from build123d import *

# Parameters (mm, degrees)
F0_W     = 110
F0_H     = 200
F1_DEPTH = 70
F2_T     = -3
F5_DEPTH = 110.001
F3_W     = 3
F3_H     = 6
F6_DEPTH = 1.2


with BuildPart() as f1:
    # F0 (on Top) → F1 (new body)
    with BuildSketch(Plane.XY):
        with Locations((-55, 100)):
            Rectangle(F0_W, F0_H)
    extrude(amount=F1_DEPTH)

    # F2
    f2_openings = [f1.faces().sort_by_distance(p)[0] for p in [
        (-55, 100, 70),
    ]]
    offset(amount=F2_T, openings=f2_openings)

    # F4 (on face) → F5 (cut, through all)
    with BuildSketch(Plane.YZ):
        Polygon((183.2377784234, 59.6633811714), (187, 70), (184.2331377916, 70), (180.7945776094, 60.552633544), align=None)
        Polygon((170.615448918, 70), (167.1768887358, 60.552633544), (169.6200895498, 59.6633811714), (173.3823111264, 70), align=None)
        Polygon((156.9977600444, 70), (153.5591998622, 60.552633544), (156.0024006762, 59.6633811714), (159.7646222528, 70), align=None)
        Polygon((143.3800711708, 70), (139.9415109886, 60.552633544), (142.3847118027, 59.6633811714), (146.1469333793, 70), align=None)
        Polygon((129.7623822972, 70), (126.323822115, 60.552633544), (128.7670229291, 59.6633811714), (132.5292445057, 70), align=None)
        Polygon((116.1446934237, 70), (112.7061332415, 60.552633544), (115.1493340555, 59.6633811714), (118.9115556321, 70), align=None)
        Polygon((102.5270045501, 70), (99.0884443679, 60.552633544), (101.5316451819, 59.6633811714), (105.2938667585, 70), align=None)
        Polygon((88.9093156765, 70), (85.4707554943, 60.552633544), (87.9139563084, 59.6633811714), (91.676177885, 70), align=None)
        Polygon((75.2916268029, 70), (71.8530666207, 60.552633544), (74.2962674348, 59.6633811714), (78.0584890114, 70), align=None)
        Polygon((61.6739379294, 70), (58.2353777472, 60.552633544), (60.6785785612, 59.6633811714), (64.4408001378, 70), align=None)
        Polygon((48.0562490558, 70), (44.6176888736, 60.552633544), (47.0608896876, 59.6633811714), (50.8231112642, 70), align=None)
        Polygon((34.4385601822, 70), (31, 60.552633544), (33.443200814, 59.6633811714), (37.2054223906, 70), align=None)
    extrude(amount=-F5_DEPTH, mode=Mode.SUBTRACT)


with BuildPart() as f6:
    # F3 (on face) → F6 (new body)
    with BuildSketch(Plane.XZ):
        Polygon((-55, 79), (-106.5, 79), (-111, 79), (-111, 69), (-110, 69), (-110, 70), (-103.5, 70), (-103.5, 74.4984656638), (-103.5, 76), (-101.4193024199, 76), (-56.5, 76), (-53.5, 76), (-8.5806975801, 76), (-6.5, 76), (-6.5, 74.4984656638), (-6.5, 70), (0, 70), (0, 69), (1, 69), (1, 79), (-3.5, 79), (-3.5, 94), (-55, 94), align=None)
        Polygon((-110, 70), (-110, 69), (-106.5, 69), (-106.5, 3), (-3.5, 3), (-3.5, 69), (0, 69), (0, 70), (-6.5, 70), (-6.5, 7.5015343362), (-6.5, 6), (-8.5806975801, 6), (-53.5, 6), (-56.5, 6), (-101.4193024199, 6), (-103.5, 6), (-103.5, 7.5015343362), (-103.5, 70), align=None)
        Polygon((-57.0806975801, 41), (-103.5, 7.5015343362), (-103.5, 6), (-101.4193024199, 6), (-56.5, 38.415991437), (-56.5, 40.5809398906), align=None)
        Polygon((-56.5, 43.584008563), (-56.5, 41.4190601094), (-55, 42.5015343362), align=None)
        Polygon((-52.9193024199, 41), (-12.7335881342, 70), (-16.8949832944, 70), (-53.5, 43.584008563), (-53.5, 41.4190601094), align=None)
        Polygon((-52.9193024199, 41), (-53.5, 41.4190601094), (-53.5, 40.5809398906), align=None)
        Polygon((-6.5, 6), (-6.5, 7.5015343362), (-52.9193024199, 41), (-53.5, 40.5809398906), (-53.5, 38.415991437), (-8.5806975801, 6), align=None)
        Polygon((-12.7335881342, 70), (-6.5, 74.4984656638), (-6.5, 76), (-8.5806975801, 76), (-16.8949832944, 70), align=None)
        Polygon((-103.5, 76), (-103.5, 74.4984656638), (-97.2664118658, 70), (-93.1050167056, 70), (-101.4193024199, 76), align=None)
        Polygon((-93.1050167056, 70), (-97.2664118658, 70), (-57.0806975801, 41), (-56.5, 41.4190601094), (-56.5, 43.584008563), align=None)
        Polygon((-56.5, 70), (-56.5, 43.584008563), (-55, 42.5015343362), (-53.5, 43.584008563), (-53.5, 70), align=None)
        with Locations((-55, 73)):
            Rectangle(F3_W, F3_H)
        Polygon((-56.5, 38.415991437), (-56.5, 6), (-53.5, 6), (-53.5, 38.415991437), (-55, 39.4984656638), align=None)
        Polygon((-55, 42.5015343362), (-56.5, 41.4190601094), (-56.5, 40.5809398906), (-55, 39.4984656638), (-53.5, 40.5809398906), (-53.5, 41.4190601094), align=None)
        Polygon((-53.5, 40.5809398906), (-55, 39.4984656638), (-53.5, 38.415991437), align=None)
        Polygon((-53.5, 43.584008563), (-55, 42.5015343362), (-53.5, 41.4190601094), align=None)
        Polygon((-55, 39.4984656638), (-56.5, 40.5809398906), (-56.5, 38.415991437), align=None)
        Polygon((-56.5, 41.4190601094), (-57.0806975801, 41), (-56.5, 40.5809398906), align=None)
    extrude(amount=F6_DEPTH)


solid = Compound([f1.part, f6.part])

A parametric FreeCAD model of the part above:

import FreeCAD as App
import Part
import Sketcher
from FreeCAD import Vector
Q = App.Units.Quantity


def faces_at(feature, points):
    """Names of the faces that lie closest to the given points."""
    faces = feature.Shape.Faces
    near = lambda p: min(range(len(faces)), key=lambda i: faces[i].distToShape(Part.Vertex(*p))[0])
    return sorted({f"Face{near(p) + 1}" for p in points})

doc = App.newDocument("Part")
body = doc.addObject("PartDesign::Body", "Body")

sketch1 = body.newObject("Sketcher::SketchObject", "Sketch")
sketch1.AttachmentSupport = (doc.getObject("XY_Plane"), [""])
sketch1.MapMode = "FlatFace"
sketch1.addGeometry(Part.LineSegment(Vector(-110, 200, 0), Vector(-110, 0, 0)), False)
sketch1.addGeometry(Part.LineSegment(Vector(-110, 0, 0), Vector(0, 0, 0)), False)
sketch1.addGeometry(Part.LineSegment(Vector(0, 0, 0), Vector(0, 200, 0)), False)
sketch1.addGeometry(Part.LineSegment(Vector(0, 200, 0), Vector(-110, 200, 0)), False)
sketch1.addConstraint(Sketcher.Constraint("Coincident", 0, 2, 1, 1))
sketch1.addConstraint(Sketcher.Constraint("Coincident", 1, 2, 2, 1))
sketch1.addConstraint(Sketcher.Constraint("Coincident", 2, 2, 3, 1))
sketch1.addConstraint(Sketcher.Constraint("Coincident", 3, 2, 0, 1))
sketch1.addConstraint(Sketcher.Constraint("Vertical", 0))
sketch1.addConstraint(Sketcher.Constraint("Horizontal", 1))
sketch1.addConstraint(Sketcher.Constraint("Vertical", 2))
sketch1.addConstraint(Sketcher.Constraint("Horizontal", 3))
sketch1.addConstraint(Sketcher.Constraint("Coincident", 1, 2, -1, 1))
sketch1.addConstraint(Sketcher.Constraint("DistanceX", 1, 1, 1, 2, Q("110 mm")))
sketch1.addConstraint(Sketcher.Constraint("DistanceY", 0, 2, 0, 1, Q("200 mm")))
pad1 = body.newObject("PartDesign::Pad", "Pad")
pad1.Profile = sketch1
pad1.Length = 70
doc.recompute()

thickness = body.newObject("PartDesign::Thickness", "Thickness")
thickness.Base = (pad1, faces_at(pad1, [(-55, 100, 70)]))
thickness.Value = 3
thickness.Reversed = True
thickness.Join = "Arc"

sketch2 = body.newObject("Sketcher::SketchObject", "Sketch001")
sketch2.AttachmentSupport = (doc.getObject("YZ_Plane"), [""])
sketch2.MapMode = "FlatFace"
sketch2.addGeometry(Part.LineSegment(Vector(183.2, 59.7, 0), Vector(187, 70, 0)), False)
sketch2.addGeometry(Part.LineSegment(Vector(187, 70, 0), Vector(184.2, 70, 0)), False)
sketch2.addGeometry(Part.LineSegment(Vector(184.2, 70, 0), Vector(180.8, 60.6, 0)), False)
sketch2.addGeometry(Part.LineSegment(Vector(180.8, 60.6, 0), Vector(183.2, 59.7, 0)), False)
sketch2.addGeometry(Part.LineSegment(Vector(170.6, 70, 0), Vector(167.2, 60.6, 0)), False)
sketch2.addGeometry(Part.LineSegment(Vector(167.2, 60.6, 0), Vector(169.6, 59.7, 0)), False)
sketch2.addGeometry(Part.LineSegment(Vector(169.6, 59.7, 0), Vector(173.4, 70, 0)), False)
sketch2.addGeometry(Part.LineSegment(Vector(173.4, 70, 0), Vector(170.6, 70, 0)), False)
sketch2.addGeometry(Part.LineSegment(Vector(157, 70, 0), Vector(153.6, 60.6, 0)), False)
sketch2.addGeometry(Part.LineSegment(Vector(153.6, 60.6, 0), Vector(156, 59.7, 0)), False)
sketch2.addGeometry(Part.LineSegment(Vector(156, 59.7, 0), Vector(159.8, 70, 0)), False)
sketch2.addGeometry(Part.LineSegment(Vector(159.8, 70, 0), Vector(157, 70, 0)), False)
sketch2.addGeometry(Part.LineSegment(Vector(143.4, 70, 0), Vector(139.9, 60.6, 0)), False)
sketch2.addGeometry(Part.LineSegment(Vector(139.9, 60.6, 0), Vector(142.4, 59.7, 0)), False)
sketch2.addGeometry(Part.LineSegment(Vector(142.4, 59.7, 0), Vector(146.1, 70, 0)), False)
sketch2.addGeometry(Part.LineSegment(Vector(146.1, 70, 0), Vector(143.4, 70, 0)), False)
sketch2.addGeometry(Part.LineSegment(Vector(129.8, 70, 0), Vector(126.3, 60.6, 0)), False)
sketch2.addGeometry(Part.LineSegment(Vector(126.3, 60.6, 0), Vector(128.8, 59.7, 0)), False)
sketch2.addGeometry(Part.LineSegment(Vector(128.8, 59.7, 0), Vector(132.5, 70, 0)), False)
sketch2.addGeometry(Part.LineSegment(Vector(132.5, 70, 0), Vector(129.8, 70, 0)), False)
sketch2.addGeometry(Part.LineSegment(Vector(116.1, 70, 0), Vector(112.7, 60.6, 0)), False)
sketch2.addGeometry(Part.LineSegment(Vector(112.7, 60.6, 0), Vector(115.1, 59.7, 0)), False)
sketch2.addGeometry(Part.LineSegment(Vector(115.1, 59.7, 0), Vector(118.9, 70, 0)), False)
sketch2.addGeometry(Part.LineSegment(Vector(118.9, 70, 0), Vector(116.1, 70, 0)), False)
sketch2.addGeometry(Part.LineSegment(Vector(102.5, 70, 0), Vector(99.1, 60.6, 0)), False)
sketch2.addGeometry(Part.LineSegment(Vector(99.1, 60.6, 0), Vector(101.5, 59.7, 0)), False)
sketch2.addGeometry(Part.LineSegment(Vector(101.5, 59.7, 0), Vector(105.3, 70, 0)), False)
sketch2.addGeometry(Part.LineSegment(Vector(105.3, 70, 0), Vector(102.5, 70, 0)), False)
sketch2.addGeometry(Part.LineSegment(Vector(88.9, 70, 0), Vector(85.5, 60.6, 0)), False)
sketch2.addGeometry(Part.LineSegment(Vector(85.5, 60.6, 0), Vector(87.9, 59.7, 0)), False)
sketch2.addGeometry(Part.LineSegment(Vector(87.9, 59.7, 0), Vector(91.7, 70, 0)), False)
sketch2.addGeometry(Part.LineSegment(Vector(91.7, 70, 0), Vector(88.9, 70, 0)), False)
sketch2.addGeometry(Part.LineSegment(Vector(75.3, 70, 0), Vector(71.9, 60.6, 0)), False)
sketch2.addGeometry(Part.LineSegment(Vector(71.9, 60.6, 0), Vector(74.3, 59.7, 0)), False)
sketch2.addGeometry(Part.LineSegment(Vector(74.3, 59.7, 0), Vector(78.1, 70, 0)), False)
sketch2.addGeometry(Part.LineSegment(Vector(78.1, 70, 0), Vector(75.3, 70, 0)), False)
sketch2.addGeometry(Part.LineSegment(Vector(61.7, 70, 0), Vector(58.2, 60.6, 0)), False)
sketch2.addGeometry(Part.LineSegment(Vector(58.2, 60.6, 0), Vector(60.7, 59.7, 0)), False)
sketch2.addGeometry(Part.LineSegment(Vector(60.7, 59.7, 0), Vector(64.4, 70, 0)), False)
sketch2.addGeometry(Part.LineSegment(Vector(64.4, 70, 0), Vector(61.7, 70, 0)), False)
sketch2.addGeometry(Part.LineSegment(Vector(48.1, 70, 0), Vector(44.6, 60.6, 0)), False)
sketch2.addGeometry(Part.LineSegment(Vector(44.6, 60.6, 0), Vector(47.1, 59.7, 0)), False)
sketch2.addGeometry(Part.LineSegment(Vector(47.1, 59.7, 0), Vector(50.8, 70, 0)), False)
sketch2.addGeometry(Part.LineSegment(Vector(50.8, 70, 0), Vector(48.1, 70, 0)), False)
sketch2.addGeometry(Part.LineSegment(Vector(34.4, 70, 0), Vector(31, 60.6, 0)), False)
sketch2.addGeometry(Part.LineSegment(Vector(31, 60.6, 0), Vector(33.4, 59.7, 0)), False)
sketch2.addGeometry(Part.LineSegment(Vector(33.4, 59.7, 0), Vector(37.2, 70, 0)), False)
sketch2.addGeometry(Part.LineSegment(Vector(37.2, 70, 0), Vector(34.4, 70, 0)), False)
sketch2.addConstraint(Sketcher.Constraint("Coincident", 0, 2, 1, 1))
sketch2.addConstraint(Sketcher.Constraint("Coincident", 1, 2, 2, 1))
sketch2.addConstraint(Sketcher.Constraint("Coincident", 2, 2, 3, 1))
sketch2.addConstraint(Sketcher.Constraint("Coincident", 3, 2, 0, 1))
sketch2.addConstraint(Sketcher.Constraint("Coincident", 4, 2, 5, 1))
sketch2.addConstraint(Sketcher.Constraint("Coincident", 5, 2, 6, 1))
sketch2.addConstraint(Sketcher.Constraint("Coincident", 6, 2, 7, 1))
sketch2.addConstraint(Sketcher.Constraint("Coincident", 7, 2, 4, 1))
sketch2.addConstraint(Sketcher.Constraint("Coincident", 8, 2, 9, 1))
sketch2.addConstraint(Sketcher.Constraint("Coincident", 9, 2, 10, 1))
sketch2.addConstraint(Sketcher.Constraint("Coincident", 10, 2, 11, 1))
sketch2.addConstraint(Sketcher.Constraint("Coincident", 11, 2, 8, 1))
sketch2.addConstraint(Sketcher.Constraint("Coincident", 12, 2, 13, 1))
sketch2.addConstraint(Sketcher.Constraint("Coincident", 13, 2, 14, 1))
sketch2.addConstraint(Sketcher.Constraint("Coincident", 14, 2, 15, 1))
sketch2.addConstraint(Sketcher.Constraint("Coincident", 15, 2, 12, 1))
sketch2.addConstraint(Sketcher.Constraint("Coincident", 16, 2, 17, 1))
sketch2.addConstraint(Sketcher.Constraint("Coincident", 17, 2, 18, 1))
sketch2.addConstraint(Sketcher.Constraint("Coincident", 18, 2, 19, 1))
sketch2.addConstraint(Sketcher.Constraint("Coincident", 19, 2, 16, 1))
sketch2.addConstraint(Sketcher.Constraint("Coincident", 20, 2, 21, 1))
sketch2.addConstraint(Sketcher.Constraint("Coincident", 21, 2, 22, 1))
sketch2.addConstraint(Sketcher.Constraint("Coincident", 22, 2, 23, 1))
sketch2.addConstraint(Sketcher.Constraint("Coincident", 23, 2, 20, 1))
sketch2.addConstraint(Sketcher.Constraint("Coincident", 24, 2, 25, 1))
sketch2.addConstraint(Sketcher.Constraint("Coincident", 25, 2, 26, 1))
sketch2.addConstraint(Sketcher.Constraint("Coincident", 26, 2, 27, 1))
sketch2.addConstraint(Sketcher.Constraint("Coincident", 27, 2, 24, 1))
sketch2.addConstraint(Sketcher.Constraint("Coincident", 28, 2, 29, 1))
sketch2.addConstraint(Sketcher.Constraint("Coincident", 29, 2, 30, 1))
sketch2.addConstraint(Sketcher.Constraint("Coincident", 30, 2, 31, 1))
sketch2.addConstraint(Sketcher.Constraint("Coincident", 31, 2, 28, 1))
sketch2.addConstraint(Sketcher.Constraint("Coincident", 32, 2, 33, 1))
sketch2.addConstraint(Sketcher.Constraint("Coincident", 33, 2, 34, 1))
sketch2.addConstraint(Sketcher.Constraint("Coincident", 34, 2, 35, 1))
sketch2.addConstraint(Sketcher.Constraint("Coincident", 35, 2, 32, 1))
sketch2.addConstraint(Sketcher.Constraint("Coincident", 36, 2, 37, 1))
sketch2.addConstraint(Sketcher.Constraint("Coincident", 37, 2, 38, 1))
sketch2.addConstraint(Sketcher.Constraint("Coincident", 38, 2, 39, 1))
sketch2.addConstraint(Sketcher.Constraint("Coincident", 39, 2, 36, 1))
sketch2.addConstraint(Sketcher.Constraint("Coincident", 40, 2, 41, 1))
sketch2.addConstraint(Sketcher.Constraint("Coincident", 41, 2, 42, 1))
sketch2.addConstraint(Sketcher.Constraint("Coincident", 42, 2, 43, 1))
sketch2.addConstraint(Sketcher.Constraint("Coincident", 43, 2, 40, 1))
sketch2.addConstraint(Sketcher.Constraint("Coincident", 44, 2, 45, 1))
sketch2.addConstraint(Sketcher.Constraint("Coincident", 45, 2, 46, 1))
sketch2.addConstraint(Sketcher.Constraint("Coincident", 46, 2, 47, 1))
sketch2.addConstraint(Sketcher.Constraint("Coincident", 47, 2, 44, 1))
sketch2.addConstraint(Sketcher.Constraint("Horizontal", 1))
sketch2.addConstraint(Sketcher.Constraint("Horizontal", 7))
sketch2.addConstraint(Sketcher.Constraint("Horizontal", 11))
sketch2.addConstraint(Sketcher.Constraint("Horizontal", 15))
sketch2.addConstraint(Sketcher.Constraint("Horizontal", 19))
sketch2.addConstraint(Sketcher.Constraint("Horizontal", 23))
sketch2.addConstraint(Sketcher.Constraint("Horizontal", 27))
sketch2.addConstraint(Sketcher.Constraint("Horizontal", 31))
sketch2.addConstraint(Sketcher.Constraint("Horizontal", 35))
sketch2.addConstraint(Sketcher.Constraint("Horizontal", 39))
sketch2.addConstraint(Sketcher.Constraint("Horizontal", 43))
sketch2.addConstraint(Sketcher.Constraint("Horizontal", 47))
sketch2.addConstraint(Sketcher.Constraint("Parallel", 0, 2))
sketch2.addConstraint(Sketcher.Constraint("Perpendicular", 2, 3))
sketch2.addConstraint(Sketcher.Constraint("Perpendicular", 3, 4))
sketch2.addConstraint(Sketcher.Constraint("Perpendicular", 4, 5))
sketch2.addConstraint(Sketcher.Constraint("Perpendicular", 5, 6))
sketch2.addConstraint(Sketcher.Constraint("Parallel", 6, 8))
sketch2.addConstraint(Sketcher.Constraint("Perpendicular", 8, 9))
sketch2.addConstraint(Sketcher.Constraint("Perpendicular", 9, 10))
sketch2.addConstraint(Sketcher.Constraint("Parallel", 10, 12))
sketch2.addConstraint(Sketcher.Constraint("Perpendicular", 12, 13))
sketch2.addConstraint(Sketcher.Constraint("Perpendicular", 13, 14))
sketch2.addConstraint(Sketcher.Constraint("Parallel", 14, 16))
sketch2.addConstraint(Sketcher.Constraint("Perpendicular", 16, 17))
sketch2.addConstraint(Sketcher.Constraint("Perpendicular", 17, 18))
sketch2.addConstraint(Sketcher.Constraint("Parallel", 18, 20))
sketch2.addConstraint(Sketcher.Constraint("Perpendicular", 20, 21))
sketch2.addConstraint(Sketcher.Constraint("Perpendicular", 21, 22))
sketch2.addConstraint(Sketcher.Constraint("Parallel", 22, 24))
sketch2.addConstraint(Sketcher.Constraint("Perpendicular", 24, 25))
sketch2.addConstraint(Sketcher.Constraint("Perpendicular", 25, 26))
sketch2.addConstraint(Sketcher.Constraint("Parallel", 26, 28))
sketch2.addConstraint(Sketcher.Constraint("Perpendicular", 28, 29))
sketch2.addConstraint(Sketcher.Constraint("Perpendicular", 29, 30))
sketch2.addConstraint(Sketcher.Constraint("Parallel", 30, 32))
sketch2.addConstraint(Sketcher.Constraint("Perpendicular", 32, 33))
sketch2.addConstraint(Sketcher.Constraint("Perpendicular", 33, 34))
sketch2.addConstraint(Sketcher.Constraint("Parallel", 34, 36))
sketch2.addConstraint(Sketcher.Constraint("Perpendicular", 36, 37))
sketch2.addConstraint(Sketcher.Constraint("Perpendicular", 37, 38))
sketch2.addConstraint(Sketcher.Constraint("Parallel", 38, 40))
sketch2.addConstraint(Sketcher.Constraint("Perpendicular", 40, 41))
sketch2.addConstraint(Sketcher.Constraint("Perpendicular", 41, 42))
sketch2.addConstraint(Sketcher.Constraint("Parallel", 42, 44))
sketch2.addConstraint(Sketcher.Constraint("Perpendicular", 44, 45))
sketch2.addConstraint(Sketcher.Constraint("Perpendicular", 45, 46))
sketch2.addConstraint(Sketcher.Constraint("Horizontal", 2, 2, 4, 2))
sketch2.addConstraint(Sketcher.Constraint("Horizontal", 3, 2, 5, 2))
sketch2.addConstraint(Sketcher.Constraint("Horizontal", 1, 2, 6, 2))
sketch2.addConstraint(Sketcher.Constraint("Horizontal", 4, 2, 8, 2))
sketch2.addConstraint(Sketcher.Constraint("Horizontal", 5, 2, 9, 2))
sketch2.addConstraint(Sketcher.Constraint("Horizontal", 7, 2, 10, 2))
sketch2.addConstraint(Sketcher.Constraint("Horizontal", 8, 2, 12, 2))
sketch2.addConstraint(Sketcher.Constraint("Horizontal", 9, 2, 13, 2))
sketch2.addConstraint(Sketcher.Constraint("Horizontal", 11, 2, 14, 2))
sketch2.addConstraint(Sketcher.Constraint("Horizontal", 12, 2, 16, 2))
sketch2.addConstraint(Sketcher.Constraint("Horizontal", 13, 2, 17, 2))
sketch2.addConstraint(Sketcher.Constraint("Horizontal", 15, 2, 18, 2))
sketch2.addConstraint(Sketcher.Constraint("Horizontal", 16, 2, 20, 2))
sketch2.addConstraint(Sketcher.Constraint("Horizontal", 17, 2, 21, 2))
sketch2.addConstraint(Sketcher.Constraint("Horizontal", 19, 2, 22, 2))
sketch2.addConstraint(Sketcher.Constraint("Horizontal", 20, 2, 24, 2))
sketch2.addConstraint(Sketcher.Constraint("Horizontal", 21, 2, 25, 2))
sketch2.addConstraint(Sketcher.Constraint("Horizontal", 23, 2, 26, 2))
sketch2.addConstraint(Sketcher.Constraint("Horizontal", 24, 2, 28, 2))
sketch2.addConstraint(Sketcher.Constraint("Horizontal", 25, 2, 29, 2))
sketch2.addConstraint(Sketcher.Constraint("Horizontal", 27, 2, 30, 2))
sketch2.addConstraint(Sketcher.Constraint("Horizontal", 28, 2, 32, 2))
sketch2.addConstraint(Sketcher.Constraint("Horizontal", 29, 2, 33, 2))
sketch2.addConstraint(Sketcher.Constraint("Horizontal", 31, 2, 34, 2))
sketch2.addConstraint(Sketcher.Constraint("Horizontal", 32, 2, 36, 2))
sketch2.addConstraint(Sketcher.Constraint("Horizontal", 33, 2, 37, 2))
sketch2.addConstraint(Sketcher.Constraint("Horizontal", 35, 2, 38, 2))
sketch2.addConstraint(Sketcher.Constraint("Horizontal", 36, 2, 40, 2))
sketch2.addConstraint(Sketcher.Constraint("Horizontal", 37, 2, 41, 2))
sketch2.addConstraint(Sketcher.Constraint("Horizontal", 39, 2, 42, 2))
sketch2.addConstraint(Sketcher.Constraint("Horizontal", 40, 2, 44, 2))
sketch2.addConstraint(Sketcher.Constraint("Horizontal", 41, 2, 45, 2))
sketch2.addConstraint(Sketcher.Constraint("Horizontal", 43, 2, 46, 2))
sketch2.addConstraint(Sketcher.Constraint("Angle", 0, Q("70 deg")))
sketch2.addConstraint(Sketcher.Constraint("Distance", 0, Q("11 mm")))
sketch2.addConstraint(Sketcher.Constraint("DistanceX", -1, 1, 0, 2, Q("187 mm")))
sketch2.addConstraint(Sketcher.Constraint("DistanceY", -1, 1, 0, 2, Q("70 mm")))
sketch2.addConstraint(Sketcher.Constraint("DistanceX", -1, 1, 44, 2, Q("31 mm")))
sketch2.addConstraint(Sketcher.Constraint("Distance", 3, Q("2.6 mm")))
sketch2.addConstraint(Sketcher.Constraint("DistanceX", -1, 1, 8, 2, Q("153.5592 mm")))
sketch2.addConstraint(Sketcher.Constraint("DistanceX", -1, 1, 38, 2, Q("64.4408 mm")))
sketch2.addConstraint(Sketcher.Constraint("DistanceX", -1, 1, 4, 2, Q("167.176889 mm")))
sketch2.addConstraint(Sketcher.Constraint("DistanceX", -1, 1, 12, 2, Q("139.941511 mm")))
sketch2.addConstraint(Sketcher.Constraint("DistanceX", -1, 1, 34, 2, Q("78.058489 mm")))
sketch2.addConstraint(Sketcher.Constraint("DistanceX", -1, 1, 40, 2, Q("44.617689 mm")))
sketch2.addConstraint(Sketcher.Constraint("DistanceX", 16, 2, 12, 2, Q("13.617689 mm")))
sketch2.addConstraint(Sketcher.Constraint("DistanceX", 20, 2, 16, 2, Q("13.617689 mm")))
sketch2.addConstraint(Sketcher.Constraint("DistanceX", 24, 2, 20, 2, Q("13.617689 mm")))
sketch2.addConstraint(Sketcher.Constraint("DistanceX", 28, 2, 24, 2, Q("13.617689 mm")))
pocket1 = body.newObject("PartDesign::Pocket", "Pocket")
pocket1.Profile = sketch2
pocket1.Type = "ThroughAll"
body2 = doc.addObject("PartDesign::Body", "Body001")

sketch3 = body2.newObject("Sketcher::SketchObject", "Sketch002")
sketch3.AttachmentSupport = (doc.getObject("XZ_Plane001"), [""])
sketch3.MapMode = "FlatFace"
sketch3.addGeometry(Part.LineSegment(Vector(-55, 79, 0), Vector(-111, 79, 0)), False)
sketch3.addGeometry(Part.LineSegment(Vector(-111, 79, 0), Vector(-111, 69, 0)), False)
sketch3.addGeometry(Part.LineSegment(Vector(-111, 69, 0), Vector(-106.5, 69, 0)), False)
sketch3.addGeometry(Part.LineSegment(Vector(-106.5, 69, 0), Vector(-106.5, 3, 0)), False)
sketch3.addGeometry(Part.LineSegment(Vector(-106.5, 3, 0), Vector(-3.5, 3, 0)), False)
sketch3.addGeometry(Part.LineSegment(Vector(-3.5, 3, 0), Vector(-3.5, 69, 0)), False)
sketch3.addGeometry(Part.LineSegment(Vector(-3.5, 69, 0), Vector(1, 69, 0)), False)
sketch3.addGeometry(Part.LineSegment(Vector(1, 69, 0), Vector(1, 79, 0)), False)
sketch3.addGeometry(Part.LineSegment(Vector(1, 79, 0), Vector(-3.5, 79, 0)), False)
sketch3.addGeometry(Part.LineSegment(Vector(-3.5, 79, 0), Vector(-3.5, 94, 0)), False)
sketch3.addGeometry(Part.LineSegment(Vector(-3.5, 94, 0), Vector(-55, 94, 0)), False)
sketch3.addGeometry(Part.LineSegment(Vector(-55, 94, 0), Vector(-55, 79, 0)), False)
sketch3.addGeometry(Part.LineSegment(Vector(-101.4, 6, 0), Vector(-56.5, 38.4, 0)), False)
sketch3.addGeometry(Part.LineSegment(Vector(-56.5, 38.4, 0), Vector(-56.5, 6, 0)), False)
sketch3.addGeometry(Part.LineSegment(Vector(-56.5, 6, 0), Vector(-101.4, 6, 0)), False)
sketch3.addGeometry(Part.LineSegment(Vector(-53.5, 6, 0), Vector(-53.5, 38.4, 0)), False)
sketch3.addGeometry(Part.LineSegment(Vector(-53.5, 38.4, 0), Vector(-8.6, 6, 0)), False)
sketch3.addGeometry(Part.LineSegment(Vector(-8.6, 6, 0), Vector(-53.5, 6, 0)), False)
sketch3.addGeometry(Part.LineSegment(Vector(-97.3, 70, 0), Vector(-57.1, 41, 0)), False)
sketch3.addGeometry(Part.LineSegment(Vector(-57.1, 41, 0), Vector(-103.5, 7.5, 0)), False)
sketch3.addGeometry(Part.LineSegment(Vector(-103.5, 7.5, 0), Vector(-103.5, 74.5, 0)), False)
sketch3.addGeometry(Part.LineSegment(Vector(-103.5, 74.5, 0), Vector(-97.3, 70, 0)), False)
sketch3.addGeometry(Part.LineSegment(Vector(-101.4, 76, 0), Vector(-56.5, 76, 0)), False)
sketch3.addGeometry(Part.LineSegment(Vector(-56.5, 76, 0), Vector(-56.5, 43.6, 0)), False)
sketch3.addGeometry(Part.LineSegment(Vector(-56.5, 43.6, 0), Vector(-101.4, 76, 0)), False)
sketch3.addGeometry(Part.LineSegment(Vector(-6.5, 74.5, 0), Vector(-6.5, 7.5, 0)), False)
sketch3.addGeometry(Part.LineSegment(Vector(-6.5, 7.5, 0), Vector(-52.9, 41, 0)), False)
sketch3.addGeometry(Part.LineSegment(Vector(-52.9, 41, 0), Vector(-12.7, 70, 0)), False)
sketch3.addGeometry(Part.LineSegment(Vector(-12.7, 70, 0), Vector(-6.5, 74.5, 0)), False)
sketch3.addGeometry(Part.LineSegment(Vector(-8.6, 76, 0), Vector(-53.5, 43.6, 0)), False)
sketch3.addGeometry(Part.LineSegment(Vector(-53.5, 43.6, 0), Vector(-53.5, 76, 0)), False)
sketch3.addGeometry(Part.LineSegment(Vector(-53.5, 76, 0), Vector(-8.6, 76, 0)), False)
sketch3.addConstraint(Sketcher.Constraint("Coincident", 0, 2, 1, 1))
sketch3.addConstraint(Sketcher.Constraint("Coincident", 1, 2, 2, 1))
sketch3.addConstraint(Sketcher.Constraint("Coincident", 2, 2, 3, 1))
sketch3.addConstraint(Sketcher.Constraint("Coincident", 3, 2, 4, 1))
sketch3.addConstraint(Sketcher.Constraint("Coincident", 4, 2, 5, 1))
sketch3.addConstraint(Sketcher.Constraint("Coincident", 5, 2, 6, 1))
sketch3.addConstraint(Sketcher.Constraint("Coincident", 6, 2, 7, 1))
sketch3.addConstraint(Sketcher.Constraint("Coincident", 7, 2, 8, 1))
sketch3.addConstraint(Sketcher.Constraint("Coincident", 8, 2, 9, 1))
sketch3.addConstraint(Sketcher.Constraint("Coincident", 9, 2, 10, 1))
sketch3.addConstraint(Sketcher.Constraint("Coincident", 10, 2, 11, 1))
sketch3.addConstraint(Sketcher.Constraint("Coincident", 11, 2, 0, 1))
sketch3.addConstraint(Sketcher.Constraint("Coincident", 12, 2, 13, 1))
sketch3.addConstraint(Sketcher.Constraint("Coincident", 13, 2, 14, 1))
sketch3.addConstraint(Sketcher.Constraint("Coincident", 14, 2, 12, 1))
sketch3.addConstraint(Sketcher.Constraint("Coincident", 15, 2, 16, 1))
sketch3.addConstraint(Sketcher.Constraint("Coincident", 16, 2, 17, 1))
sketch3.addConstraint(Sketcher.Constraint("Coincident", 17, 2, 15, 1))
sketch3.addConstraint(Sketcher.Constraint("Coincident", 18, 2, 19, 1))
sketch3.addConstraint(Sketcher.Constraint("Coincident", 19, 2, 20, 1))
sketch3.addConstraint(Sketcher.Constraint("Coincident", 20, 2, 21, 1))
sketch3.addConstraint(Sketcher.Constraint("Coincident", 21, 2, 18, 1))
sketch3.addConstraint(Sketcher.Constraint("Coincident", 22, 2, 23, 1))
sketch3.addConstraint(Sketcher.Constraint("Coincident", 23, 2, 24, 1))
sketch3.addConstraint(Sketcher.Constraint("Coincident", 24, 2, 22, 1))
sketch3.addConstraint(Sketcher.Constraint("Coincident", 25, 2, 26, 1))
sketch3.addConstraint(Sketcher.Constraint("Coincident", 26, 2, 27, 1))
sketch3.addConstraint(Sketcher.Constraint("Coincident", 27, 2, 28, 1))
sketch3.addConstraint(Sketcher.Constraint("Coincident", 28, 2, 25, 1))
sketch3.addConstraint(Sketcher.Constraint("Coincident", 29, 2, 30, 1))
sketch3.addConstraint(Sketcher.Constraint("Coincident", 30, 2, 31, 1))
sketch3.addConstraint(Sketcher.Constraint("Coincident", 31, 2, 29, 1))
sketch3.addConstraint(Sketcher.Constraint("Horizontal", 0))
sketch3.addConstraint(Sketcher.Constraint("Vertical", 1))
sketch3.addConstraint(Sketcher.Constraint("Horizontal", 2))
sketch3.addConstraint(Sketcher.Constraint("Vertical", 3))
sketch3.addConstraint(Sketcher.Constraint("Horizontal", 4))
sketch3.addConstraint(Sketcher.Constraint("Vertical", 5))
sketch3.addConstraint(Sketcher.Constraint("Horizontal", 6))
sketch3.addConstraint(Sketcher.Constraint("Vertical", 7))
sketch3.addConstraint(Sketcher.Constraint("Horizontal", 8))
sketch3.addConstraint(Sketcher.Constraint("Vertical", 9))
sketch3.addConstraint(Sketcher.Constraint("Horizontal", 10))
sketch3.addConstraint(Sketcher.Constraint("Vertical", 11))
sketch3.addConstraint(Sketcher.Constraint("Vertical", 13))
sketch3.addConstraint(Sketcher.Constraint("Horizontal", 14))
sketch3.addConstraint(Sketcher.Constraint("Vertical", 15))
sketch3.addConstraint(Sketcher.Constraint("Horizontal", 17))
sketch3.addConstraint(Sketcher.Constraint("Vertical", 20))
sketch3.addConstraint(Sketcher.Constraint("Horizontal", 22))
sketch3.addConstraint(Sketcher.Constraint("Vertical", 23))
sketch3.addConstraint(Sketcher.Constraint("Vertical", 25))
sketch3.addConstraint(Sketcher.Constraint("Vertical", 30))
sketch3.addConstraint(Sketcher.Constraint("Horizontal", 31))
sketch3.addConstraint(Sketcher.Constraint("Parallel", 16, 18))
sketch3.addConstraint(Sketcher.Constraint("Parallel", 12, 19))
sketch3.addConstraint(Sketcher.Constraint("Parallel", 18, 21))
sketch3.addConstraint(Sketcher.Constraint("Parallel", 21, 24))
sketch3.addConstraint(Sketcher.Constraint("Parallel", 24, 26))
sketch3.addConstraint(Sketcher.Constraint("Parallel", 19, 27))
sketch3.addConstraint(Sketcher.Constraint("Parallel", 27, 28))
sketch3.addConstraint(Sketcher.Constraint("Parallel", 28, 29))
sketch3.addConstraint(Sketcher.Constraint("Horizontal", 2, 2, 5, 2))
sketch3.addConstraint(Sketcher.Constraint("Horizontal", 0, 2, 7, 2))
sketch3.addConstraint(Sketcher.Constraint("Horizontal", 12, 2, 15, 2))
sketch3.addConstraint(Sketcher.Constraint("Horizontal", 14, 2, 16, 2))
sketch3.addConstraint(Sketcher.Constraint("Horizontal", 19, 2, 25, 2))
sketch3.addConstraint(Sketcher.Constraint("Horizontal", 18, 2, 26, 2))
sketch3.addConstraint(Sketcher.Constraint("Horizontal", 21, 2, 27, 2))
sketch3.addConstraint(Sketcher.Constraint("Horizontal", 20, 2, 28, 2))
sketch3.addConstraint(Sketcher.Constraint("Horizontal", 23, 2, 29, 2))
sketch3.addConstraint(Sketcher.Constraint("Horizontal", 24, 2, 30, 2))
sketch3.addConstraint(Sketcher.Constraint("Vertical", 5, 2, 8, 2))
sketch3.addConstraint(Sketcher.Constraint("Vertical", 13, 2, 22, 2))
sketch3.addConstraint(Sketcher.Constraint("Vertical", 14, 2, 24, 2))
sketch3.addConstraint(Sketcher.Constraint("Vertical", 17, 2, 29, 2))
sketch3.addConstraint(Sketcher.Constraint("Equal", 2, 6))
sketch3.addConstraint(Sketcher.Constraint("DistanceX", 0, 2, 0, 1, Q("56 mm")))
sketch3.addConstraint(Sketcher.Constraint("DistanceX", 4, 1, 4, 2, Q("103 mm")))
sketch3.addConstraint(Sketcher.Constraint("DistanceY", 1, 2, 1, 1, Q("10 mm")))
sketch3.addConstraint(Sketcher.Constraint("DistanceY", 3, 2, 3, 1, Q("66 mm")))
sketch3.addConstraint(Sketcher.Constraint("DistanceY", 9, 1, 9, 2, Q("15 mm")))
sketch3.addConstraint(Sketcher.Constraint("DistanceX", 2, 1, 2, 2, Q("4.5 mm")))
sketch3.addConstraint(Sketcher.Constraint("DistanceX", 0, 2, -1, 1, Q("111 mm")))
sketch3.addConstraint(Sketcher.Constraint("DistanceY", -1, 1, 0, 2, Q("79 mm")))
sketch3.addConstraint(Sketcher.Constraint("DistanceY", -1, 1, 13, 2, Q("6 mm")))
sketch3.addConstraint(Sketcher.Constraint("DistanceY", -1, 1, 18, 2, Q("41 mm")))
sketch3.addConstraint(Sketcher.Constraint("DistanceY", -1, 1, 21, 2, Q("70 mm")))
sketch3.addConstraint(Sketcher.Constraint("DistanceY", -1, 1, 22, 2, Q("76 mm")))
sketch3.addConstraint(Sketcher.Constraint("DistanceX", 2, 2, 12, 2, Q("50 mm")))
sketch3.addConstraint(Sketcher.Constraint("DistanceX", 12, 2, 15, 2, Q("3 mm")))
sketch3.addConstraint(Sketcher.Constraint("DistanceX", 3, 2, 19, 2, Q("3 mm")))
sketch3.addConstraint(Sketcher.Constraint("DistanceX", 25, 2, 4, 2, Q("3 mm")))
sketch3.addConstraint(Sketcher.Constraint("DistanceY", 13, 2, 13, 1, Q("32.415991 mm")))
sketch3.addConstraint(Sketcher.Constraint("DistanceY", 20, 1, 20, 2, Q("66.996931 mm")))
sketch3.addConstraint(Sketcher.Constraint("Distance", 21, Q("7.68725 mm")))
pad2 = body2.newObject("PartDesign::Pad", "Pad001")
pad2.Profile = sketch3
pad2.Length = 1.2

doc.recompute()
